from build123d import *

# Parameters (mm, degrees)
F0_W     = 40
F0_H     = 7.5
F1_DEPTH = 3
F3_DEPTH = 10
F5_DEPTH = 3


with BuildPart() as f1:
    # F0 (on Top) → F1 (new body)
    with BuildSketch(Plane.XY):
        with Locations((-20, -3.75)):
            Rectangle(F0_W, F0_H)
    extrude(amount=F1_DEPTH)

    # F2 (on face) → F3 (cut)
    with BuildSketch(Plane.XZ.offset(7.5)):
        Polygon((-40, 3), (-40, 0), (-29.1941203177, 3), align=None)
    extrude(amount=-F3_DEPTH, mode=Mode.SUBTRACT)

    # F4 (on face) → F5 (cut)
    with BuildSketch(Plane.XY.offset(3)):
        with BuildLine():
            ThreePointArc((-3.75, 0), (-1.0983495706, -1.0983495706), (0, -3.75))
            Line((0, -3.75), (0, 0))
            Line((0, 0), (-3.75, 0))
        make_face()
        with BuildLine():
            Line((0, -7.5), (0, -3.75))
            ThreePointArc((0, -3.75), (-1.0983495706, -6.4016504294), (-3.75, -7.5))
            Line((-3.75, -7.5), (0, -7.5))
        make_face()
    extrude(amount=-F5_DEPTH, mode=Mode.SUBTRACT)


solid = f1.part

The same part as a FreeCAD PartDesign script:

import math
import FreeCAD as App
import Part
import Sketcher


def add_polygon(sketch, points):
    """Adds a closed chain of lines whose ends are joined by coincident constraints."""
    first, n = sketch.GeometryCount, len(points)
    for a, b in zip(points, points[1:] + points[:1]):
        sketch.addGeometry(Part.LineSegment(App.Vector(*a, 0), App.Vector(*b, 0)), False)
    for i in range(n):
        sketch.addConstraint(Sketcher.Constraint("Coincident", first + i, 2, first + (i + 1) % n, 1))

doc = App.newDocument("Part")
body = doc.addObject("PartDesign::Body", "Body")

# Sketch on XY plane
sketch1 = body.newObject("Sketcher::SketchObject", "Sketch")
sketch1.AttachmentSupport = (doc.getObject("XY_Plane"), [""])
sketch1.MapMode = "FlatFace"
add_polygon(sketch1, [(-40, 0), (-40, -8), (0, -8), (0, 0)])  # lines 0-3
sketch1.addConstraint(Sketcher.Constraint("Vertical", 0))
sketch1.addConstraint(Sketcher.Constraint("Horizontal", 1))
sketch1.addConstraint(Sketcher.Constraint("Vertical", 2))
sketch1.addConstraint(Sketcher.Constraint("Horizontal", 3))
sketch1.addConstraint(Sketcher.Constraint("Coincident", 2, 2, -1, 1))
sketch1.addConstraint(Sketcher.Constraint("DistanceX", 1, 1, 1, 2, 40.0))
sketch1.addConstraint(Sketcher.Constraint("DistanceY", 0, 2, 0, 1, 7.5))
pad1 = body.newObject("PartDesign::Pad", "Pad")
pad1.Profile = sketch1
pad1.Length = 3

# Sketch on XZ plane
sketch2 = body.newObject("Sketcher::SketchObject", "Sketch001")
sketch2.AttachmentSupport = (doc.getObject("XZ_Plane"), [""])
sketch2.MapMode = "FlatFace"
sketch2.AttachmentOffset = App.Placement(App.Vector(0, 0, 7.5), App.Rotation())
add_polygon(sketch2, [(-40, 3), (-40, 0), (-29.2, 3)])  # lines 0-2
sketch2.addConstraint(Sketcher.Constraint("Vertical", 0))
sketch2.addConstraint(Sketcher.Constraint("Horizontal", 2))
sketch2.addConstraint(Sketcher.Constraint("PointOnObject", 0, 2, -1))
sketch2.addConstraint(Sketcher.Constraint("DistanceY", 0, 2, 0, 1, 3.0))
sketch2.addConstraint(Sketcher.Constraint("DistanceX", 0, 2, -1, 1, 40.0))
sketch2.addConstraint(Sketcher.Constraint("DistanceX", 2, 2, 2, 1, 10.80588))
pocket1 = body.newObject("PartDesign::Pocket", "Pocket")
pocket1.Profile = sketch2
pocket1.Length = 10

# Sketch on XY plane
sketch3 = body.newObject("Sketcher::SketchObject", "Sketch002")
sketch3.AttachmentSupport = (doc.getObject("XY_Plane"), [""])
sketch3.MapMode = "FlatFace"
sketch3.AttachmentOffset = App.Placement(App.Vector(0, 0, 3), App.Rotation())
sketch3.addGeometry(Part.ArcOfCircle(Part.Circle(App.Vector(-3.8, -3.8, 0), App.Vector(0, 0, 1), 3.8), math.radians(0), math.radians(90)), False)
sketch3.addGeometry(Part.LineSegment(App.Vector(0, -3.8, 0), App.Vector(0, 0, 0)), False)
sketch3.addGeometry(Part.LineSegment(App.Vector(0, 0, 0), App.Vector(-3.8, 0, 0)), False)
sketch3.addGeometry(Part.LineSegment(App.Vector(0, -7.5, 0), App.Vector(0, -3.8, 0)), False)
sketch3.addGeometry(Part.ArcOfCircle(Part.Circle(App.Vector(-3.8, -3.8, 0), App.Vector(0, 0, 1), 3.8), math.radians(-90), math.radians(0)), False)
sketch3.addGeometry(Part.LineSegment(App.Vector(-3.8, -7.5, 0), App.Vector(0, -7.5, 0)), False)
sketch3.addConstraint(Sketcher.Constraint("Tangent", 0, 1, 1, 1))
sketch3.addConstraint(Sketcher.Constraint("Coincident", 1, 2, 2, 1))
sketch3.addConstraint(Sketcher.Constraint("Tangent", 2, 2, 0, 2))
sketch3.addConstraint(Sketcher.Constraint("Tangent", 3, 2, 4, 2))
sketch3.addConstraint(Sketcher.Constraint("Tangent", 4, 1, 5, 1))
sketch3.addConstraint(Sketcher.Constraint("Coincident", 5, 2, 3, 1))
sketch3.addConstraint(Sketcher.Constraint("Vertical", 1))
sketch3.addConstraint(Sketcher.Constraint("Horizontal", 2))
sketch3.addConstraint(Sketcher.Constraint("Vertical", 3))
sketch3.addConstraint(Sketcher.Constraint("Horizontal", 5))
sketch3.addConstraint(Sketcher.Constraint("Coincident", 1, 2, -1, 1))
sketch3.addConstraint(Sketcher.Constraint("Coincident", 4, 3, 0, 3))
sketch3.addConstraint(Sketcher.Constraint("Equal", 0, 4))
sketch3.addConstraint(Sketcher.Constraint("Radius", 0, 3.75))
pocket2 = body.newObject("PartDesign::Pocket", "Pocket001")
pocket2.Profile = sketch3
pocket2.Length = 3

doc.recompute()
